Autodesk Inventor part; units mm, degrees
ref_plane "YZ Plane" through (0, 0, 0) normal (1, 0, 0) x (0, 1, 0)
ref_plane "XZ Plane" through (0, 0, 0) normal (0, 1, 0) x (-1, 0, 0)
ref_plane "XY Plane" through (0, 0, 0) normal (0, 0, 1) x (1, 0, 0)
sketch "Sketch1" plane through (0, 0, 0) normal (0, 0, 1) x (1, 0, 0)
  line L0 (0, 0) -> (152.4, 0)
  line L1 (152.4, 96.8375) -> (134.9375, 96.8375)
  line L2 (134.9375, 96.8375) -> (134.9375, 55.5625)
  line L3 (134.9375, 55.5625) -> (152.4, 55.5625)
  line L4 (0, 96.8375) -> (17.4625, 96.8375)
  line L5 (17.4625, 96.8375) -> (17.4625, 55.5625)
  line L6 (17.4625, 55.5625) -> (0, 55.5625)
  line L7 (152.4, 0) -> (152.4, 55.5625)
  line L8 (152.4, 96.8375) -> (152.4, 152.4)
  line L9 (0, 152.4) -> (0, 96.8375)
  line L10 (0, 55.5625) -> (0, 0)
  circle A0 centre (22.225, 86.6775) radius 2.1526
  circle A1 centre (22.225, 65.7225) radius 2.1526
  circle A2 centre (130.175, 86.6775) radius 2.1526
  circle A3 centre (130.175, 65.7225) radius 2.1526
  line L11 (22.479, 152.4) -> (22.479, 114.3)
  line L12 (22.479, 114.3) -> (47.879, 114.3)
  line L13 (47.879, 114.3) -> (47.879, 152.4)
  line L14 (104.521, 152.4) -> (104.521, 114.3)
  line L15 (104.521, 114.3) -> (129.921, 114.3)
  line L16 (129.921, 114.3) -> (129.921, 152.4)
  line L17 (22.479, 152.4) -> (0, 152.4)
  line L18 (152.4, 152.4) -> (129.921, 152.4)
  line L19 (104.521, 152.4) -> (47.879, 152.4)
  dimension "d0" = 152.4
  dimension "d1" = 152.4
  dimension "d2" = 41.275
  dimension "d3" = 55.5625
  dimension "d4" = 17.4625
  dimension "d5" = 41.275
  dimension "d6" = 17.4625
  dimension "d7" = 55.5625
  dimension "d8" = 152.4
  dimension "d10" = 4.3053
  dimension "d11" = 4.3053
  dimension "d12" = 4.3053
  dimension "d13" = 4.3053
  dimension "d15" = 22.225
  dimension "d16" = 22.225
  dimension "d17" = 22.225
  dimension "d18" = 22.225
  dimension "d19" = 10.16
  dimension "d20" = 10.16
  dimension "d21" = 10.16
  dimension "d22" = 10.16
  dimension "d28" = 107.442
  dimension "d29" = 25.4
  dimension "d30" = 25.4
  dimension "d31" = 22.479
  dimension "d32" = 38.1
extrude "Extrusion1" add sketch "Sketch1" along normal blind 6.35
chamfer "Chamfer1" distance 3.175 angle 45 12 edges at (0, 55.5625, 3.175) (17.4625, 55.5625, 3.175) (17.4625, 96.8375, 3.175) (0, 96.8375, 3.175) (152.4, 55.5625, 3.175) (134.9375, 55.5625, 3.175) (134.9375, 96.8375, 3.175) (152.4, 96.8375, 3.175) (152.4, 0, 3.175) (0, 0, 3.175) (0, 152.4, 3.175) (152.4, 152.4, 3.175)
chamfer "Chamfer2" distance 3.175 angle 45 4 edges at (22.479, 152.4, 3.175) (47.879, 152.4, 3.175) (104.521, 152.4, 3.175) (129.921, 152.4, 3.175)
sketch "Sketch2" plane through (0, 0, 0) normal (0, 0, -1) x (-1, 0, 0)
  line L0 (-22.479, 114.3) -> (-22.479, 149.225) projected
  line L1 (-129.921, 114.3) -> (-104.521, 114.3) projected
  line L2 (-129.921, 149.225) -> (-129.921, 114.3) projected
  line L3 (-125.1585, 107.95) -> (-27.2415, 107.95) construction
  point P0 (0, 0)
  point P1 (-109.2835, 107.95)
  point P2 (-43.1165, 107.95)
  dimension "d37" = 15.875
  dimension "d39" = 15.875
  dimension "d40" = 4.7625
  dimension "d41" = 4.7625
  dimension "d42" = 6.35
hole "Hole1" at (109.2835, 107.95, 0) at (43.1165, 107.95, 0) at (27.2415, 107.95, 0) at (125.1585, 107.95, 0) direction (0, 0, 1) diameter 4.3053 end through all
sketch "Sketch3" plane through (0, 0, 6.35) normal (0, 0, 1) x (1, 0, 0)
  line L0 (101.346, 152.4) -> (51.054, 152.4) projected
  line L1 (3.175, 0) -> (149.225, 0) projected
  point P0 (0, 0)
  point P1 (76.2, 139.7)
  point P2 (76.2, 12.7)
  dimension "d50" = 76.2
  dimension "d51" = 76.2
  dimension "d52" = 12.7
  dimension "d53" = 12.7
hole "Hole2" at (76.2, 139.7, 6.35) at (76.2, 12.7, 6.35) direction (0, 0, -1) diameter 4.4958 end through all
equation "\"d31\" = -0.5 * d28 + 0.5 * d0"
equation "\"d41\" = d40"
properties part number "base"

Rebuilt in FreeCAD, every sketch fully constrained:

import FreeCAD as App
import Part
import Sketcher

V = App.Vector
Q = App.Units.Quantity


def edges_at(feature, points):
    """Names of the edges that pass closest to the given points."""
    edges = feature.Shape.Edges
    near = lambda p: min(range(len(edges)), key=lambda i: edges[i].distToShape(Part.Vertex(*p))[0])
    return sorted({f"Edge{near(p) + 1}" for p in points})

doc = App.newDocument("Part")
body = doc.addObject("PartDesign::Body", "Body")

sketch1 = doc.addObject("Sketcher::SketchObject", "Sketch")
body.addObject(sketch1)
sketch1.AttachmentSupport = (doc.XY_Plane, [""])
sketch1.MapMode = "FlatFace"
sketch1.addGeometry(Part.LineSegment(V(0, 55.5625, 0), V(0, 0, 0)), False)
sketch1.addGeometry(Part.LineSegment(V(0, 0, 0), V(152.4, 0, 0)), False)
sketch1.addGeometry(Part.LineSegment(V(152.4, 0, 0), V(152.4, 55.5625, 0)), False)
sketch1.addGeometry(Part.LineSegment(V(152.4, 55.5625, 0), V(134.9375, 55.5625, 0)), False)
sketch1.addGeometry(Part.LineSegment(V(134.9375, 55.5625, 0), V(134.9375, 96.8375, 0)), False)
sketch1.addGeometry(Part.LineSegment(V(134.9375, 96.8375, 0), V(152.4, 96.8375, 0)), False)
sketch1.addGeometry(Part.LineSegment(V(152.4, 96.8375, 0), V(152.4, 152.4, 0)), False)
sketch1.addGeometry(Part.LineSegment(V(152.4, 152.4, 0), V(129.921, 152.4, 0)), False)
sketch1.addGeometry(Part.LineSegment(V(129.921, 152.4, 0), V(129.921, 114.3, 0)), False)
sketch1.addGeometry(Part.LineSegment(V(129.921, 114.3, 0), V(104.521, 114.3, 0)), False)
sketch1.addGeometry(Part.LineSegment(V(104.521, 114.3, 0), V(104.521, 152.4, 0)), False)
sketch1.addGeometry(Part.LineSegment(V(104.521, 152.4, 0), V(47.879, 152.4, 0)), False)
sketch1.addGeometry(Part.LineSegment(V(47.879, 152.4, 0), V(47.879, 114.3, 0)), False)
sketch1.addGeometry(Part.LineSegment(V(47.879, 114.3, 0), V(22.479, 114.3, 0)), False)
sketch1.addGeometry(Part.LineSegment(V(22.479, 114.3, 0), V(22.479, 152.4, 0)), False)
sketch1.addGeometry(Part.LineSegment(V(22.479, 152.4, 0), V(0, 152.4, 0)), False)
sketch1.addGeometry(Part.LineSegment(V(0, 152.4, 0), V(0, 96.8375, 0)), False)
sketch1.addGeometry(Part.LineSegment(V(0, 96.8375, 0), V(17.4625, 96.8375, 0)), False)
sketch1.addGeometry(Part.LineSegment(V(17.4625, 96.8375, 0), V(17.4625, 55.5625, 0)), False)
sketch1.addGeometry(Part.LineSegment(V(17.4625, 55.5625, 0), V(0, 55.5625, 0)), False)
sketch1.addGeometry(Part.Circle(V(22.225, 65.7225, 0), V(0, 0, 1), 2.1526), False)
sketch1.addGeometry(Part.Circle(V(130.175, 65.7225, 0), V(0, 0, 1), 2.1526), False)
sketch1.addGeometry(Part.Circle(V(22.225, 86.6775, 0), V(0, 0, 1), 2.1526), False)
sketch1.addGeometry(Part.Circle(V(130.175, 86.6775, 0), V(0, 0, 1), 2.1526), False)
sketch1.addConstraint(Sketcher.Constraint("Coincident", 0, 2, 1, 1))
sketch1.addConstraint(Sketcher.Constraint("Coincident", 1, 2, 2, 1))
sketch1.addConstraint(Sketcher.Constraint("Coincident", 2, 2, 3, 1))
sketch1.addConstraint(Sketcher.Constraint("Coincident", 3, 2, 4, 1))
sketch1.addConstraint(Sketcher.Constraint("Coincident", 4, 2, 5, 1))
sketch1.addConstraint(Sketcher.Constraint("Coincident", 5, 2, 6, 1))
sketch1.addConstraint(Sketcher.Constraint("Coincident", 6, 2, 7, 1))
sketch1.addConstraint(Sketcher.Constraint("Coincident", 7, 2, 8, 1))
sketch1.addConstraint(Sketcher.Constraint("Coincident", 8, 2, 9, 1))
sketch1.addConstraint(Sketcher.Constraint("Coincident", 9, 2, 10, 1))
sketch1.addConstraint(Sketcher.Constraint("Coincident", 10, 2, 11, 1))
sketch1.addConstraint(Sketcher.Constraint("Coincident", 11, 2, 12, 1))
sketch1.addConstraint(Sketcher.Constraint("Coincident", 12, 2, 13, 1))
sketch1.addConstraint(Sketcher.Constraint("Coincident", 13, 2, 14, 1))
sketch1.addConstraint(Sketcher.Constraint("Coincident", 14, 2, 15, 1))
sketch1.addConstraint(Sketcher.Constraint("Coincident", 15, 2, 16, 1))
sketch1.addConstraint(Sketcher.Constraint("Coincident", 16, 2, 17, 1))
sketch1.addConstraint(Sketcher.Constraint("Coincident", 17, 2, 18, 1))
sketch1.addConstraint(Sketcher.Constraint("Coincident", 18, 2, 19, 1))
sketch1.addConstraint(Sketcher.Constraint("Coincident", 19, 2, 0, 1))
sketch1.addConstraint(Sketcher.Constraint("Vertical", 0))
sketch1.addConstraint(Sketcher.Constraint("Horizontal", 1))
sketch1.addConstraint(Sketcher.Constraint("Vertical", 2))
sketch1.addConstraint(Sketcher.Constraint("Horizontal", 3))
sketch1.addConstraint(Sketcher.Constraint("Vertical", 4))
sketch1.addConstraint(Sketcher.Constraint("Horizontal", 5))
sketch1.addConstraint(Sketcher.Constraint("Vertical", 6))
sketch1.addConstraint(Sketcher.Constraint("Horizontal", 7))
sketch1.addConstraint(Sketcher.Constraint("Vertical", 8))
sketch1.addConstraint(Sketcher.Constraint("Horizontal", 9))
sketch1.addConstraint(Sketcher.Constraint("Vertical", 10))
sketch1.addConstraint(Sketcher.Constraint("Horizontal", 11))
sketch1.addConstraint(Sketcher.Constraint("Vertical", 12))
sketch1.addConstraint(Sketcher.Constraint("Horizontal", 13))
sketch1.addConstraint(Sketcher.Constraint("Vertical", 14))
sketch1.addConstraint(Sketcher.Constraint("Horizontal", 15))
sketch1.addConstraint(Sketcher.Constraint("Vertical", 16))
sketch1.addConstraint(Sketcher.Constraint("Horizontal", 17))
sketch1.addConstraint(Sketcher.Constraint("Vertical", 18))
sketch1.addConstraint(Sketcher.Constraint("Horizontal", 19))
sketch1.addConstraint(Sketcher.Constraint("Coincident", 0, 2, -1, 1))
sketch1.addConstraint(Sketcher.Constraint("Equal", 20, 21))
sketch1.addConstraint(Sketcher.Constraint("Equal", 21, 22))
sketch1.addConstraint(Sketcher.Constraint("Equal", 22, 23))
sketch1.addConstraint(Sketcher.Constraint("PointOnObject", 15, 2, -2))
sketch1.addConstraint(Sketcher.Constraint("Horizontal", 20, 3, 21, 3))
sketch1.addConstraint(Sketcher.Constraint("Horizontal", 22, 3, 23, 3))
sketch1.addConstraint(Sketcher.Constraint("Horizontal", 7, 2, 10, 2))
sketch1.addConstraint(Sketcher.Constraint("Horizontal", 9, 2, 12, 2))
sketch1.addConstraint(Sketcher.Constraint("Horizontal", 11, 2, 14, 2))
sketch1.addConstraint(Sketcher.Constraint("Horizontal", 5, 2, 16, 2))
sketch1.addConstraint(Sketcher.Constraint("Horizontal", 3, 2, 18, 2))
sketch1.addConstraint(Sketcher.Constraint("Vertical", 20, 3, 22, 3))
sketch1.addConstraint(Sketcher.Constraint("Vertical", 21, 3, 23, 3))
sketch1.addConstraint(Sketcher.Constraint("Vertical", 2, 2, 5, 2))
sketch1.addConstraint(Sketcher.Constraint("Equal", 9, 13))
sketch1.addConstraint(Sketcher.Constraint("Equal", 7, 15))
sketch1.addConstraint(Sketcher.Constraint("Equal", 5, 17))
sketch1.addConstraint(Sketcher.Constraint("Equal", 2, 6))
sketch1.addConstraint(Sketcher.Constraint("DistanceX", 1, 1, 1, 2, Q("6 in")))
sketch1.addConstraint(Sketcher.Constraint("DistanceX", 9, 2, 9, 1, Q("1 in")))
sketch1.addConstraint(Sketcher.Constraint("DistanceY", 8, 2, 8, 1, Q("1.5 in")))
sketch1.addConstraint(Sketcher.Constraint("DistanceY", -1, 1, 6, 2, Q("6 in")))
sketch1.addConstraint(Sketcher.Constraint("Diameter", 20, Q("0.1695 in")))
sketch1.addConstraint(Sketcher.Constraint("DistanceY", 2, 2, 21, 3, Q("0.4 in")))
sketch1.addConstraint(Sketcher.Constraint("DistanceY", 23, 3, 4, 2, Q("0.4 in")))
sketch1.addConstraint(Sketcher.Constraint("DistanceX", 3, 2, 3, 1, Q("0.6875 in")))
sketch1.addConstraint(Sketcher.Constraint("DistanceX", 7, 2, 7, 1, Q("0.885 in")))
sketch1.addConstraint(Sketcher.Constraint("DistanceY", 0, 2, 0, 1, Q("2.1875 in")))
sketch1.addConstraint(Sketcher.Constraint("DistanceX", -1, 1, 20, 3, Q("0.875 in")))
sketch1.addConstraint(Sketcher.Constraint("DistanceX", 21, 3, 1, 2, Q("0.875 in")))
pad1 = doc.addObject("PartDesign::Pad", "Pad")
body.addObject(pad1)
pad1.Profile = sketch1
pad1.Length = Q("0.25 in")
doc.recompute()

chamfer = doc.addObject("PartDesign::Chamfer", "Chamfer")
body.addObject(chamfer)
chamfer.Base = (pad1, edges_at(pad1, [
    (0, 55.562, 3.175),
    (17.462, 55.562, 3.175),
    (17.462, 96.838, 3.175),
    (0, 96.838, 3.175),
    (152.4, 55.562, 3.175),
    (134.938, 55.562, 3.175),
    (134.938, 96.838, 3.175),
    (152.4, 96.838, 3.175),
    (152.4, 0, 3.175),
    (0, 0, 3.175),
    (0, 152.4, 3.175),
    (152.4, 152.4, 3.175),
]))
chamfer.Size = Q("0.125 in")
doc.recompute()

chamfer2 = doc.addObject("PartDesign::Chamfer", "Chamfer001")
body.addObject(chamfer2)
chamfer2.Base = (chamfer, edges_at(chamfer, [
    (22.479, 152.4, 3.175),
    (47.879, 152.4, 3.175),
    (104.521, 152.4, 3.175),
    (129.921, 152.4, 3.175),
]))
chamfer2.Size = Q("0.125 in")

sketch2 = doc.addObject("Sketcher::SketchObject", "Sketch001")
body.addObject(sketch2)
sketch2.AttachmentSupport = (doc.XY_Plane, [""])
sketch2.MapMode = "FlatFace"
sketch2.addGeometry(Part.Circle(V(109.2835, 107.95, 0), V(0, 0, 1), 2.15265), False)
sketch2.addGeometry(Part.Circle(V(43.1165, 107.95, 0), V(0, 0, 1), 2.15265), False)
sketch2.addGeometry(Part.Circle(V(27.2415, 107.95, 0), V(0, 0, 1), 2.15265), False)
sketch2.addGeometry(Part.Circle(V(125.1585, 107.95, 0), V(0, 0, 1), 2.15265), False)
sketch2.addConstraint(Sketcher.Constraint("Equal", 0, 1))
sketch2.addConstraint(Sketcher.Constraint("Equal", 1, 2))
sketch2.addConstraint(Sketcher.Constraint("Equal", 2, 3))
sketch2.addConstraint(Sketcher.Constraint("Horizontal", 0, 3, 1, 3))
sketch2.addConstraint(Sketcher.Constraint("Horizontal", 1, 3, 2, 3))
sketch2.addConstraint(Sketcher.Constraint("Horizontal", 2, 3, 3, 3))
sketch2.addConstraint(Sketcher.Constraint("Diameter", 0, Q("0.1695 in")))
sketch2.addConstraint(Sketcher.Constraint("DistanceY", -1, 1, 0, 3, Q("4.25 in")))
sketch2.addConstraint(Sketcher.Constraint("DistanceX", 2, 3, 0, 3, Q("3.23 in")))
sketch2.addConstraint(Sketcher.Constraint("DistanceX", 1, 3, 3, 3, Q("3.23 in")))
sketch2.addConstraint(Sketcher.Constraint("DistanceX", 1, 3, 0, 3, Q("2.605 in")))
sketch2.addConstraint(Sketcher.Constraint("DistanceX", -1, 1, 0, 3, Q("4.3025 in")))
doc.recompute()
hole = doc.addObject("PartDesign::Hole", "Hole")
body.addObject(hole)
hole.Profile = sketch2
hole.ThreadType = "None"
hole.Diameter = Q("0.1695 in")
hole.DepthType = "ThroughAll"
hole.Reversed = True

sketch3 = doc.addObject("Sketcher::SketchObject", "Sketch002")
body.addObject(sketch3)
sketch3.AttachmentSupport = (doc.XY_Plane, [""])
sketch3.MapMode = "FlatFace"
sketch3.AttachmentOffset = App.Placement(V(0, 0, 0.25 * 25.4), App.Rotation())
sketch3.addGeometry(Part.Circle(V(76.2, 139.7, 0), V(0, 0, 1), 2.2479), False)
sketch3.addGeometry(Part.Circle(V(76.2, 12.7, 0), V(0, 0, 1), 2.2479), False)
sketch3.addConstraint(Sketcher.Constraint("Equal", 0, 1))
sketch3.addConstraint(Sketcher.Constraint("Vertical", 0, 3, 1, 3))
sketch3.addConstraint(Sketcher.Constraint("Diameter", 0, Q("0.177 in")))
sketch3.addConstraint(Sketcher.Constraint("DistanceX", -1, 1, 0, 3, Q("3 in")))
sketch3.addConstraint(Sketcher.Constraint("DistanceY", 1, 3, 0, 3, Q("5 in")))
sketch3.addConstraint(Sketcher.Constraint("DistanceY", -1, 1, 0, 3, Q("5.5 in")))
doc.recompute()
hole2 = doc.addObject("PartDesign::Hole", "Hole001")
body.addObject(hole2)
hole2.Profile = sketch3
hole2.ThreadType = "None"
hole2.Diameter = Q("0.177 in")
hole2.DepthType = "ThroughAll"

doc.recompute()
